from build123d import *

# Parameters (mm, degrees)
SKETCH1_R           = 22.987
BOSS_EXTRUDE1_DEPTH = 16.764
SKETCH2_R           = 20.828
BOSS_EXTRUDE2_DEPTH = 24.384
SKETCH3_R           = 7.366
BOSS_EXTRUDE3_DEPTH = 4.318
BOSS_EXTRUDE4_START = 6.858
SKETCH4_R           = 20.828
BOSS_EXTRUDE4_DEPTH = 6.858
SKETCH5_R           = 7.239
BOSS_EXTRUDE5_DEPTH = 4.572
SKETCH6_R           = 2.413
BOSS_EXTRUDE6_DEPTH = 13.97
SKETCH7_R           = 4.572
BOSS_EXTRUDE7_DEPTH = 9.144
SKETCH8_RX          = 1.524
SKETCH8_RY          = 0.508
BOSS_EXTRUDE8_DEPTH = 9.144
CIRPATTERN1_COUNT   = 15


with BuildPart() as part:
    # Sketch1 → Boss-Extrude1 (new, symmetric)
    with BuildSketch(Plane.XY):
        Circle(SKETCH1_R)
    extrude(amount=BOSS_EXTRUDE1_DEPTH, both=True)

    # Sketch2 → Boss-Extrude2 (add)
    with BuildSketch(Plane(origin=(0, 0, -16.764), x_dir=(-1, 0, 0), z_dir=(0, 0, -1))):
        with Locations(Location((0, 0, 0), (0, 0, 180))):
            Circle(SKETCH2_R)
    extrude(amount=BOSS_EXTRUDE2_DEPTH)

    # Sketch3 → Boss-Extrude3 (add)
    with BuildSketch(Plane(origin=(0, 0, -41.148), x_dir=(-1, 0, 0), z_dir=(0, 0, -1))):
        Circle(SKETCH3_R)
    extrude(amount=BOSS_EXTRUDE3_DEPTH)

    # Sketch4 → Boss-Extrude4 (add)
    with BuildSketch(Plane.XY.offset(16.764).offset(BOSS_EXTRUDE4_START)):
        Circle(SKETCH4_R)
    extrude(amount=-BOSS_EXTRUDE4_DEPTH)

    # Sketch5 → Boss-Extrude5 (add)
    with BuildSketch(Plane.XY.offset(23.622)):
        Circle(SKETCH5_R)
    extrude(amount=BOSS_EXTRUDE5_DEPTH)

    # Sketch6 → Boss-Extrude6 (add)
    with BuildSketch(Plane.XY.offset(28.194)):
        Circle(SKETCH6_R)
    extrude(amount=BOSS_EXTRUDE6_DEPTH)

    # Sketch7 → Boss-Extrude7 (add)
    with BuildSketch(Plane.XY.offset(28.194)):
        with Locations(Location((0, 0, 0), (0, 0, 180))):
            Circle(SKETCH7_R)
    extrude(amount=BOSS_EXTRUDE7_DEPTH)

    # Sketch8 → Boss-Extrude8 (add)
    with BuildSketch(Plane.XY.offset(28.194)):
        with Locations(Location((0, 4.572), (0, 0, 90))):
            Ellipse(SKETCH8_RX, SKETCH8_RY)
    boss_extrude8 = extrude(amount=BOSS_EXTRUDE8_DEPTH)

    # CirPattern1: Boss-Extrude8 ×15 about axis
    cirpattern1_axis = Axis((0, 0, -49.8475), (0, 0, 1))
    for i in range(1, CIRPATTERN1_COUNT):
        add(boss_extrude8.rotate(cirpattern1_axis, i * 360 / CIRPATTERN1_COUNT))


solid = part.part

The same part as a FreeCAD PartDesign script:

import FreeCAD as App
import Part
import Sketcher
from FreeCAD import Vector
Q = App.Units.Quantity

doc = App.newDocument("Part")
params = doc.addObject("Spreadsheet::Sheet", "Params")
for row, (alias, value) in enumerate([
    ("sketch1_diameter", "1.81 in"),
    ("pad1_length", "1.32 in"),
    ("sketch2_diameter", "1.64 in"),
    ("pad2_length", "0.96 in"),
    ("sketch3_diameter", "0.58 in"),
    ("pad3_length", "0.17 in"),
    ("sketch4_diameter", "1.64 in"),
    ("pad4_length", "0.27 in"),
    ("sketch5_diameter", "0.57 in"),
    ("pad5_length", "0.18 in"),
    ("sketch6_diameter", "0.19 in"),
    ("pad6_length", "0.55 in"),
    ("sketch7_diameter", "0.36 in"),
    ("pad7_length", "0.36 in"),
    ("pad8_length", "0.36 in"),
], start=1):
    params.set(f"A{row}", alias)
    params.set(f"B{row}", "=" + value)
    params.setAlias(f"B{row}", alias)

body = doc.addObject("PartDesign::Body", "Body")

# Sketch on XY plane
sketch1 = body.newObject("Sketcher::SketchObject", "Sketch")
sketch1.AttachmentSupport = (doc.getObject("XY_Plane"), [""])
sketch1.MapMode = "FlatFace"
sketch1.addGeometry(Part.Circle(Vector(0, 0, 0), Vector(0, 0, 1), 22.987), False)
sketch1.addConstraint([
    Sketcher.Constraint("Coincident", 0, 3, -1, 1),
    Sketcher.Constraint("Diameter", 0, Q("1.81 in")),
])
sketch1.setExpression("Constraints[1]", "Params.sketch1_diameter")
pad1 = body.newObject("PartDesign::Pad", "Pad")
pad1.Profile = sketch1
pad1.setExpression("Length", "Params.pad1_length")
pad1.Midplane = True

# Sketch on XY plane
sketch2 = body.newObject("Sketcher::SketchObject", "Sketch001")
sketch2.AttachmentSupport = (doc.getObject("XY_Plane"), [""])
sketch2.MapMode = "FlatFace"
sketch2.AttachmentOffset = App.Placement(Vector(0, 0, -0.66 * 25.4), App.Rotation())
sketch2.addGeometry(Part.Circle(Vector(0, 0, 0), Vector(0, 0, 1), 20.828), False)
sketch2.addConstraint([
    Sketcher.Constraint("Coincident", 0, 3, -1, 1),
    Sketcher.Constraint("Diameter", 0, Q("1.64 in")),
])
sketch2.setExpression("Constraints[1]", "Params.sketch2_diameter")
pad2 = body.newObject("PartDesign::Pad", "Pad001")
pad2.Profile = sketch2
pad2.setExpression("Length", "Params.pad2_length")
pad2.Reversed = True

# Sketch on XY plane
sketch3 = body.newObject("Sketcher::SketchObject", "Sketch002")
sketch3.AttachmentSupport = (doc.getObject("XY_Plane"), [""])
sketch3.MapMode = "FlatFace"
sketch3.AttachmentOffset = App.Placement(Vector(0, 0, -1.62 * 25.4), App.Rotation())
sketch3.addGeometry(Part.Circle(Vector(0, 0, 0), Vector(0, 0, 1), 7.366), False)
sketch3.addConstraint([
    Sketcher.Constraint("Coincident", 0, 3, -1, 1),
    Sketcher.Constraint("Diameter", 0, Q("0.58 in")),
])
sketch3.setExpression("Constraints[1]", "Params.sketch3_diameter")
pad3 = body.newObject("PartDesign::Pad", "Pad002")
pad3.Profile = sketch3
pad3.setExpression("Length", "Params.pad3_length")
pad3.Reversed = True

# Sketch on XY plane
sketch4 = body.newObject("Sketcher::SketchObject", "Sketch003")
sketch4.AttachmentSupport = (doc.getObject("XY_Plane"), [""])
sketch4.MapMode = "FlatFace"
sketch4.AttachmentOffset = App.Placement(Vector(0, 0, 0.93 * 25.4), App.Rotation())
sketch4.addGeometry(Part.Circle(Vector(0, 0, 0), Vector(0, 0, 1), 20.828), False)
sketch4.addConstraint([
    Sketcher.Constraint("Coincident", 0, 3, -1, 1),
    Sketcher.Constraint("Diameter", 0, Q("1.64 in")),
])
sketch4.setExpression("Constraints[1]", "Params.sketch4_diameter")
pad4 = body.newObject("PartDesign::Pad", "Pad003")
pad4.Profile = sketch4
pad4.setExpression("Length", "Params.pad4_length")
pad4.Reversed = True

# Sketch on XY plane
sketch5 = body.newObject("Sketcher::SketchObject", "Sketch004")
sketch5.AttachmentSupport = (doc.getObject("XY_Plane"), [""])
sketch5.MapMode = "FlatFace"
sketch5.AttachmentOffset = App.Placement(Vector(0, 0, 0.93 * 25.4), App.Rotation())
sketch5.addGeometry(Part.Circle(Vector(0, 0, 0), Vector(0, 0, 1), 7.239), False)
sketch5.addConstraint([
    Sketcher.Constraint("Coincident", 0, 3, -1, 1),
    Sketcher.Constraint("Diameter", 0, Q("0.57 in")),
])
sketch5.setExpression("Constraints[1]", "Params.sketch5_diameter")
pad5 = body.newObject("PartDesign::Pad", "Pad004")
pad5.Profile = sketch5
pad5.setExpression("Length", "Params.pad5_length")

# Sketch on XY plane
sketch6 = body.newObject("Sketcher::SketchObject", "Sketch005")
sketch6.AttachmentSupport = (doc.getObject("XY_Plane"), [""])
sketch6.MapMode = "FlatFace"
sketch6.AttachmentOffset = App.Placement(Vector(0, 0, 1.11 * 25.4), App.Rotation())
sketch6.addGeometry(Part.Circle(Vector(0, 0, 0), Vector(0, 0, 1), 2.413), False)
sketch6.addConstraint([
    Sketcher.Constraint("Coincident", 0, 3, -1, 1),
    Sketcher.Constraint("Diameter", 0, Q("0.19 in")),
])
sketch6.setExpression("Constraints[1]", "Params.sketch6_diameter")
pad6 = body.newObject("PartDesign::Pad", "Pad005")
pad6.Profile = sketch6
pad6.setExpression("Length", "Params.pad6_length")

# Sketch on XY plane
sketch7 = body.newObject("Sketcher::SketchObject", "Sketch006")
sketch7.AttachmentSupport = (doc.getObject("XY_Plane"), [""])
sketch7.MapMode = "FlatFace"
sketch7.AttachmentOffset = App.Placement(Vector(0, 0, 1.11 * 25.4), App.Rotation())
sketch7.addGeometry(Part.Circle(Vector(0, 0, 0), Vector(0, 0, 1), 4.572), False)
sketch7.addConstraint([
    Sketcher.Constraint("Coincident", 0, 3, -1, 1),
    Sketcher.Constraint("Diameter", 0, Q("0.36 in")),
])
sketch7.setExpression("Constraints[1]", "Params.sketch7_diameter")
pad7 = body.newObject("PartDesign::Pad", "Pad006")
pad7.Profile = sketch7
pad7.setExpression("Length", "Params.pad7_length")

# Sketch on XY plane
sketch8 = body.newObject("Sketcher::SketchObject", "Sketch007")
sketch8.AttachmentSupport = (doc.getObject("XY_Plane"), [""])
sketch8.MapMode = "FlatFace"
sketch8.AttachmentOffset = App.Placement(Vector(0, 0, 1.11 * 25.4), App.Rotation())
sketch8.addGeometry(Part.Ellipse(Vector(0, 6.096, 0), Vector(-0.508, 4.572, 0), Vector(0, 4.572, 0)), False)
sketch8.addConstraint(Sketcher.Constraint("Block", 0))
pad8 = body.newObject("PartDesign::Pad", "Pad007")
pad8.Profile = sketch8
pad8.setExpression("Length", "Params.pad8_length")
doc.recompute()

polarpattern = body.newObject("PartDesign::PolarPattern", "PolarPattern")
polarpattern.Originals = [pad8]
polarpattern.Axis = (doc.getObject("Z_Axis"), [""])
polarpattern.Angle = 360
polarpattern.Occurrences = 15
body.Tip = polarpattern

doc.recompute()
